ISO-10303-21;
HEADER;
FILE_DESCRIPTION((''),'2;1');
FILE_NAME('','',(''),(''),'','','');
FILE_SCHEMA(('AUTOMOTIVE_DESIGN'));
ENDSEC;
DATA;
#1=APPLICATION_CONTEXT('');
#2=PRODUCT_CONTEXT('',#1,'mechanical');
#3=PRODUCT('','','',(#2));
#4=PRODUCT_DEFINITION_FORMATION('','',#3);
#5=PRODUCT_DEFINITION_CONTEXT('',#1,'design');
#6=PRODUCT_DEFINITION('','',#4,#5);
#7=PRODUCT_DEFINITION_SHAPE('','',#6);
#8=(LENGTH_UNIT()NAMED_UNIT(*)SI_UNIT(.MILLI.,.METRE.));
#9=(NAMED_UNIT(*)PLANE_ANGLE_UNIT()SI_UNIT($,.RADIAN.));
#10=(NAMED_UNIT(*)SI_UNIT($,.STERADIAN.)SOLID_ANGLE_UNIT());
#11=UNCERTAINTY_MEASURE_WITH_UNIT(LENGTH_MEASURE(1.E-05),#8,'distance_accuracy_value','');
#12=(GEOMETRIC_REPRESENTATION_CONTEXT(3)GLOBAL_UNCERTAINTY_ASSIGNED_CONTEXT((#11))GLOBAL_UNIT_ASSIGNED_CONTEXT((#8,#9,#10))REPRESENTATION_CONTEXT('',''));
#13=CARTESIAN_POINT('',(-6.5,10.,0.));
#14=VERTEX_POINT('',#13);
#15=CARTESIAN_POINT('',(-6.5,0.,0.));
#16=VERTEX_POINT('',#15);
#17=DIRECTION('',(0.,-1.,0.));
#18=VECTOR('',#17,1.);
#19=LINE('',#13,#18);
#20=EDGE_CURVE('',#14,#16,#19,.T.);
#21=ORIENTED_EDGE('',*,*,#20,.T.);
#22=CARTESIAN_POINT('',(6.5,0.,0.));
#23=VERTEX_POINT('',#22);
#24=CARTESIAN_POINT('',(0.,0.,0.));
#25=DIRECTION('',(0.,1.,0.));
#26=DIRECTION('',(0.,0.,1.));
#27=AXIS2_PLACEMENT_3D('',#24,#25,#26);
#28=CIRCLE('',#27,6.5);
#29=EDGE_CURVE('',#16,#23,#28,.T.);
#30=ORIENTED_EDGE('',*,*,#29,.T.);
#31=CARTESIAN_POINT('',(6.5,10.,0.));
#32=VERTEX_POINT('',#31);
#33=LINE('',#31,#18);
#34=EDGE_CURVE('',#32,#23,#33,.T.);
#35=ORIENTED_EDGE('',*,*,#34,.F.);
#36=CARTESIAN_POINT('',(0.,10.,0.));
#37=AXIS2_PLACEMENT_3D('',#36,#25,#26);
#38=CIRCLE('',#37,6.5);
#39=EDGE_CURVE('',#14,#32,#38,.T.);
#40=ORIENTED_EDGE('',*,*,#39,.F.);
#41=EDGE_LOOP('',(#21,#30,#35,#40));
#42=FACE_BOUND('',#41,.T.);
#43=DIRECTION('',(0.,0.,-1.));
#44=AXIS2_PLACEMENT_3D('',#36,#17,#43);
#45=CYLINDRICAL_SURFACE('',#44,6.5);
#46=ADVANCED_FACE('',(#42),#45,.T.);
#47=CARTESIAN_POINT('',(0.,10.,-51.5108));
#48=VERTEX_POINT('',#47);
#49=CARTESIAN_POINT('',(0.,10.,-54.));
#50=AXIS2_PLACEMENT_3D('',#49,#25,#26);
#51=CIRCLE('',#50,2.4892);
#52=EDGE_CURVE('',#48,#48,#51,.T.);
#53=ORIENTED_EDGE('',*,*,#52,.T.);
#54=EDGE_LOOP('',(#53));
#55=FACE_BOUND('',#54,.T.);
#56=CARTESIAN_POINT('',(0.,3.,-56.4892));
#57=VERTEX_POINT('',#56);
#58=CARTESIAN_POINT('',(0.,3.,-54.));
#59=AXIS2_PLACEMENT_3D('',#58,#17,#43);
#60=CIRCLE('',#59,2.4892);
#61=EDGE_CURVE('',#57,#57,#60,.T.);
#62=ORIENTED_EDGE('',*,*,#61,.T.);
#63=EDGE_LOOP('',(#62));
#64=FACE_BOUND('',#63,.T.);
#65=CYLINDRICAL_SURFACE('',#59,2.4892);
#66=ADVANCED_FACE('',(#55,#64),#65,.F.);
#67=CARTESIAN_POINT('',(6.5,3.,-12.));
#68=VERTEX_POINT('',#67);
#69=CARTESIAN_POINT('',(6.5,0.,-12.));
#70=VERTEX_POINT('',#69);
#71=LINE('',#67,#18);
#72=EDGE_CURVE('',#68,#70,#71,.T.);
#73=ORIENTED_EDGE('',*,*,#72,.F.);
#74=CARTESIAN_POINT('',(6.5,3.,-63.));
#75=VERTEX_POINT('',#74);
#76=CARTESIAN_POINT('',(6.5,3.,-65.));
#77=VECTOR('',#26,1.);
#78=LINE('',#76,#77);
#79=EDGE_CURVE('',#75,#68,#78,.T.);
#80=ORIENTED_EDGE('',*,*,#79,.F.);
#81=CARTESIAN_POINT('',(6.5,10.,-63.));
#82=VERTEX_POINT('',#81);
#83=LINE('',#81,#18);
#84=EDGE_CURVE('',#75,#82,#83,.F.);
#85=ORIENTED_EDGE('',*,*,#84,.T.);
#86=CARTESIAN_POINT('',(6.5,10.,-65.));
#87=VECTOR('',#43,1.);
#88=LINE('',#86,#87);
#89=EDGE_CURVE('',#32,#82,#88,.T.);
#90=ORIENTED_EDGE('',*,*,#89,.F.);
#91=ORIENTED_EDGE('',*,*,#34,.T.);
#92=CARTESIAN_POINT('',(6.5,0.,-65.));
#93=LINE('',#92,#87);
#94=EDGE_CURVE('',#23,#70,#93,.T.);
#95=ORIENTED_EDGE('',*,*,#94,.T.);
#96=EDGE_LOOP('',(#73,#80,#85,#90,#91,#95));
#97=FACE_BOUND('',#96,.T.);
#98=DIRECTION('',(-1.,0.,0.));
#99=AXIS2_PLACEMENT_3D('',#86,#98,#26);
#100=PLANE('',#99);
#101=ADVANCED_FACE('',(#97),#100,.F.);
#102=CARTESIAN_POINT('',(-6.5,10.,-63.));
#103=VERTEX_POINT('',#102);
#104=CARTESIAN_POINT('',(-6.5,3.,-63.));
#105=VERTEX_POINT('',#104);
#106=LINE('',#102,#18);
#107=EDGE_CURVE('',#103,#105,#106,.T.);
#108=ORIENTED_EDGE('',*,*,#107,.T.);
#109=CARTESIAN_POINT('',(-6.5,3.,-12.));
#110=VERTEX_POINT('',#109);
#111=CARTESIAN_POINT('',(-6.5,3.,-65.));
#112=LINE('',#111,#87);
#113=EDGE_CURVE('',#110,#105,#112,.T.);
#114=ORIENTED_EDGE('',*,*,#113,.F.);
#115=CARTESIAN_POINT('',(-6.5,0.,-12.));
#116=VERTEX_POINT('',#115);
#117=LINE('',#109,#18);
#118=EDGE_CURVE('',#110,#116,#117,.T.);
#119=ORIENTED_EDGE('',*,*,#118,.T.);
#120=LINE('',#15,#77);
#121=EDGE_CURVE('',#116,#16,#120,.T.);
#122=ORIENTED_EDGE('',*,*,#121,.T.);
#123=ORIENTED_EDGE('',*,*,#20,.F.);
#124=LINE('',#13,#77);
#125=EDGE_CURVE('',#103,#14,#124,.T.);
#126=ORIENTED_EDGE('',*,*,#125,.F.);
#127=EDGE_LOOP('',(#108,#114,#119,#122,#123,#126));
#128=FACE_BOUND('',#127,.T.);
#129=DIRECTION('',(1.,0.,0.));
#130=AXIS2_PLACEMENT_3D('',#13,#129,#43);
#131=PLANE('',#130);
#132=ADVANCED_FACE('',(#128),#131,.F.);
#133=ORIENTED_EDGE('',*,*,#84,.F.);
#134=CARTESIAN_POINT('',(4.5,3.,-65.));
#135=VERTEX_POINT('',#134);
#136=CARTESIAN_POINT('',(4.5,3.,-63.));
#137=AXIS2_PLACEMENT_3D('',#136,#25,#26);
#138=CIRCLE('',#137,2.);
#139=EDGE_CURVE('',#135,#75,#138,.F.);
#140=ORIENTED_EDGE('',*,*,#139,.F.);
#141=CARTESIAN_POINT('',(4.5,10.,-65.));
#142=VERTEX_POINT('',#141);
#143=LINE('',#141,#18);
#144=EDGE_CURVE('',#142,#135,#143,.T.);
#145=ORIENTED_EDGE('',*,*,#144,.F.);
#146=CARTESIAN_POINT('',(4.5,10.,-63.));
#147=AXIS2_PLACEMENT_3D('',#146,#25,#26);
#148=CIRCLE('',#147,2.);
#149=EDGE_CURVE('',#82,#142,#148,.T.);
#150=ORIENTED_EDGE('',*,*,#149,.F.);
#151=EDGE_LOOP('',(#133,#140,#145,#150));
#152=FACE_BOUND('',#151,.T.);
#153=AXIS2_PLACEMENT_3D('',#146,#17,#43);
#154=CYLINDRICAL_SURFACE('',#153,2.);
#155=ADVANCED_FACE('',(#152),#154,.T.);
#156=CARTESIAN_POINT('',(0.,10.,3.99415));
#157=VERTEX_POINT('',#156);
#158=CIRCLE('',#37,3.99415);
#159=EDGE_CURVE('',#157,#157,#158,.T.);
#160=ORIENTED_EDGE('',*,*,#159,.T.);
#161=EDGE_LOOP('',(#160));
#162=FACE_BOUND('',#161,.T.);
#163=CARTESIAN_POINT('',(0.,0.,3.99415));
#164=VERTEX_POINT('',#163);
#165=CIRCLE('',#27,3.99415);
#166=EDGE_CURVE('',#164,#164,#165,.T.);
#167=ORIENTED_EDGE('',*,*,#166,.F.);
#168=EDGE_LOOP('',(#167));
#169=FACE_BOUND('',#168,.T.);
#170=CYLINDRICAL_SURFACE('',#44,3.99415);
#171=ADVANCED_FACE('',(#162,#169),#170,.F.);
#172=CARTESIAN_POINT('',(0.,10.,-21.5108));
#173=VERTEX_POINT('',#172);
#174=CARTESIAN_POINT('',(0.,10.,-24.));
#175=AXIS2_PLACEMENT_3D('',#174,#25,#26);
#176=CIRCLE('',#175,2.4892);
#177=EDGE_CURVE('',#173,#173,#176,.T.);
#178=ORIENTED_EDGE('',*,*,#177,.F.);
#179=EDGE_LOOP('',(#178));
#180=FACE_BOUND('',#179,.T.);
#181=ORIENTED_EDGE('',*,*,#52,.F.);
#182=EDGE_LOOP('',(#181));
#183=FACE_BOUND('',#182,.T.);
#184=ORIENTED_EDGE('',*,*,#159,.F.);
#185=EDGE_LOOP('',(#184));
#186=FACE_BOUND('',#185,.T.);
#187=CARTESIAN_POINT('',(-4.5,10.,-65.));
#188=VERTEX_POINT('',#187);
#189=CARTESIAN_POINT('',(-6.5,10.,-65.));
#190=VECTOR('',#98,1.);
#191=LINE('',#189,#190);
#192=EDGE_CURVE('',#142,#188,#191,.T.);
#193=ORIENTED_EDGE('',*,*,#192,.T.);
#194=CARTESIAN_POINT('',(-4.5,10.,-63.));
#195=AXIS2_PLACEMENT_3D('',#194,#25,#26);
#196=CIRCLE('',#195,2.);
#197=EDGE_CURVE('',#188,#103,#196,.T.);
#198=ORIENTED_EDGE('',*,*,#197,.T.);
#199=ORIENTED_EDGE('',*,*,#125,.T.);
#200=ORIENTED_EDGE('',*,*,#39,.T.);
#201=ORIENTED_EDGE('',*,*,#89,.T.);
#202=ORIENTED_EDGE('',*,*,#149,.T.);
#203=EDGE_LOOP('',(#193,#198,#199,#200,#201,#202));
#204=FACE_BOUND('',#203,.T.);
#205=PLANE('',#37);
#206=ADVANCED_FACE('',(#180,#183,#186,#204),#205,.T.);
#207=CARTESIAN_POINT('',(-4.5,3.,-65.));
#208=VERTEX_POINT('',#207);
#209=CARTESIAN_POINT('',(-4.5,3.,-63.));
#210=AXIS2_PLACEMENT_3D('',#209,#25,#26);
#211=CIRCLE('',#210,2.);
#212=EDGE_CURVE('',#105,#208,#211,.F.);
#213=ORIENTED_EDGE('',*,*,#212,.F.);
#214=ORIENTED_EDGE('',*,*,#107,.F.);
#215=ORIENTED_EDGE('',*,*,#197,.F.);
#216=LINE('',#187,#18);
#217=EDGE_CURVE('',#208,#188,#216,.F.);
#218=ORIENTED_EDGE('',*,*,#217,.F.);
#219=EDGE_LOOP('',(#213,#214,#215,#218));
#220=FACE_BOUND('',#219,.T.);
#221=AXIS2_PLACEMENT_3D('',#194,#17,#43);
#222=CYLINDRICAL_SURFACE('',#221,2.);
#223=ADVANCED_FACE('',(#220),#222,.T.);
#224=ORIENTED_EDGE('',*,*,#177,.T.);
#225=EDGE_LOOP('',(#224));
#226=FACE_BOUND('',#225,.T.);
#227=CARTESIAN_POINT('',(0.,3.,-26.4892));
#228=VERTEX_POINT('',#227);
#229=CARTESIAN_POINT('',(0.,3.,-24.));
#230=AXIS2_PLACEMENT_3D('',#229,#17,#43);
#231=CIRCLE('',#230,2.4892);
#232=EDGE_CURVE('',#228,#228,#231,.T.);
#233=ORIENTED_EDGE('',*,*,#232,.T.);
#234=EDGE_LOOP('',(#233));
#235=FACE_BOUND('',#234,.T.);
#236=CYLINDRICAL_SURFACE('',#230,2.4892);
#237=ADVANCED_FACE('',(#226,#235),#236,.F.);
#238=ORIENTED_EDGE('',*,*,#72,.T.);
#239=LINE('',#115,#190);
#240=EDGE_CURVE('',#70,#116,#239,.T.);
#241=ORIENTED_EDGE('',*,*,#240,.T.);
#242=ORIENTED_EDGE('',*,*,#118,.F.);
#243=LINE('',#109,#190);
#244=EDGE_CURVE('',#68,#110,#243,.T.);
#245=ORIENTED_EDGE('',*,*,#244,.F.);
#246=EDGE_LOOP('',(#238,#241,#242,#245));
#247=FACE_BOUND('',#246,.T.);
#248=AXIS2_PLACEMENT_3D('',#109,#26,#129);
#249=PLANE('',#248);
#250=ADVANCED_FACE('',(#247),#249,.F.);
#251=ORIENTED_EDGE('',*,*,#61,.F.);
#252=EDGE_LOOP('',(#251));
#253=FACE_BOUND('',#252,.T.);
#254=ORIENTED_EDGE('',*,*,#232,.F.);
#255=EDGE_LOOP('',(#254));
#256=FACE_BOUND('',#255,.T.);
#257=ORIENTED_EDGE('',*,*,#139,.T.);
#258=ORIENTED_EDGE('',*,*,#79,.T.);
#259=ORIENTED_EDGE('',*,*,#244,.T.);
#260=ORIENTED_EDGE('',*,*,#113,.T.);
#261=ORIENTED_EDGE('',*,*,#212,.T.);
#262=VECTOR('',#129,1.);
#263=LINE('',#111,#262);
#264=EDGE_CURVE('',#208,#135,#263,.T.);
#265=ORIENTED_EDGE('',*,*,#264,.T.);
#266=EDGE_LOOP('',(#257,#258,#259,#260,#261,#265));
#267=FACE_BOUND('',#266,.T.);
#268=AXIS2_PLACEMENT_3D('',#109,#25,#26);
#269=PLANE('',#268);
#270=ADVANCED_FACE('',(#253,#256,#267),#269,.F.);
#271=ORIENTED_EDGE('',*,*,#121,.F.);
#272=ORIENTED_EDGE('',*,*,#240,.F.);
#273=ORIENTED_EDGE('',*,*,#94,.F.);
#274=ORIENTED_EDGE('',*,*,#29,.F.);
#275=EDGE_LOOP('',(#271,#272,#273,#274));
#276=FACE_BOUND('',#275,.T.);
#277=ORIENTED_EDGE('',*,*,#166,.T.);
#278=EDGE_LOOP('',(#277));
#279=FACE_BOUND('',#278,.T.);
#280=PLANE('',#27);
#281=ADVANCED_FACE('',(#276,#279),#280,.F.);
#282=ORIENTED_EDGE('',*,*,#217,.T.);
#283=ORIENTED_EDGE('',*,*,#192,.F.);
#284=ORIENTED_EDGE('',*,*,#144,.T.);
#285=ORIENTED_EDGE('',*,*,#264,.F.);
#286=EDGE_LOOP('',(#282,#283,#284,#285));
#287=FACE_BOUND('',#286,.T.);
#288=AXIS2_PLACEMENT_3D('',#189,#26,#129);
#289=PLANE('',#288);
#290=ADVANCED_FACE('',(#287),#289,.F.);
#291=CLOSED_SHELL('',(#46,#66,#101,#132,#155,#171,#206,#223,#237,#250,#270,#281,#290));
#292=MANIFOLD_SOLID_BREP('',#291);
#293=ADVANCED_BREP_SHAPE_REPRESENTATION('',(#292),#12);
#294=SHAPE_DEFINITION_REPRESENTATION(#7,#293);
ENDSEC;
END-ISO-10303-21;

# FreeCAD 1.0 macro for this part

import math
import FreeCAD as App
import Part
import Sketcher

V = App.Vector


def edges_at(feature, points):
    """Names of the edges that pass closest to the given points."""
    edges = feature.Shape.Edges
    near = lambda p: min(range(len(edges)), key=lambda i: edges[i].distToShape(Part.Vertex(*p))[0])
    return sorted({f"Edge{near(p) + 1}" for p in points})

doc = App.newDocument("Part")
params = doc.addObject("Spreadsheet::Sheet", "Params")
for row, (alias, value) in enumerate([
    ("sketch1_radius", "6.5 mm"),
    ("sketch1_height", "65 mm"),
    ("pad1_length", "10 mm"),
    ("sketch2_width", "13 mm"),
    ("sketch2_height", "53 mm"),
    ("pocket1_length", "3 mm"),
    ("hole_diameter", "4.9784 mm"),
    ("hole_depth", "40 mm"),
    ("fillet_radius", "2 mm"),
], start=1):
    params.set(f"A{row}", alias)
    params.set(f"B{row}", "=" + value)
    params.setAlias(f"B{row}", alias)

body = doc.addObject("PartDesign::Body", "Body")

sketch1 = body.newObject("Sketcher::SketchObject", "Sketch")
sketch1.AttachmentSupport = (doc.getObject("XZ_Plane"), [""])
sketch1.MapMode = "FlatFace"
sketch1.addGeometry([
    Part.LineSegment(V(-6.5, -65, 0), V(-6.5, 0, 0)),
    Part.ArcOfCircle(Part.Circle(V(0, 0, 0), V(0, 0, 1), 6.5), math.radians(0), math.radians(180)),
    Part.LineSegment(V(6.5, 0, 0), V(6.5, -65, 0)),
    Part.LineSegment(V(6.5, -65, 0), V(-6.5, -65, 0)),
    Part.Circle(V(0, 0, 0), V(0, 0, 1), 4),
], False)
sketch1.addConstraint([
    Sketcher.Constraint("Tangent", 0, 2, 1, 2),
    Sketcher.Constraint("Tangent", 1, 1, 2, 1),
    Sketcher.Constraint("Coincident", 2, 2, 3, 1),
    Sketcher.Constraint("Coincident", 3, 2, 0, 1),
    Sketcher.Constraint("Vertical", 0),
    Sketcher.Constraint("Vertical", 2),
    Sketcher.Constraint("Horizontal", 3),
    Sketcher.Constraint("Coincident", 1, 3, -1, 1),
    Sketcher.Constraint("Coincident", 4, 3, -1, 1),
    Sketcher.Constraint("Radius", 1, 6.5),
    Sketcher.Constraint("DistanceY", 0, 1, 0, 2, 65.0),
    Sketcher.Constraint("Diameter", 4, 7.9883),
])
sketch1.setExpression("Constraints[9]", "Params.sketch1_radius")
sketch1.setExpression("Constraints[10]", "Params.sketch1_height")
pad1 = body.newObject("PartDesign::Pad", "Pad")
pad1.Profile = sketch1
pad1.setExpression("Length", "Params.pad1_length")
pad1.Reversed = True

sketch2 = body.newObject("Sketcher::SketchObject", "Sketch001")
sketch2.AttachmentSupport = (doc.getObject("XZ_Plane"), [""])
sketch2.MapMode = "FlatFace"
sketch2.addGeometry([
    Part.LineSegment(V(-6, -12, 0), V(-6, -65, 0)),
    Part.LineSegment(V(-6, -65, 0), V(6, -65, 0)),
    Part.LineSegment(V(6, -65, 0), V(6, -12, 0)),
    Part.LineSegment(V(6, -12, 0), V(-6, -12, 0)),
], False)
sketch2.addConstraint([
    Sketcher.Constraint("Coincident", 0, 2, 1, 1),
    Sketcher.Constraint("Coincident", 1, 2, 2, 1),
    Sketcher.Constraint("Coincident", 2, 2, 3, 1),
    Sketcher.Constraint("Coincident", 3, 2, 0, 1),
    Sketcher.Constraint("Vertical", 0),
    Sketcher.Constraint("Horizontal", 1),
    Sketcher.Constraint("Vertical", 2),
    Sketcher.Constraint("Horizontal", 3),
    Sketcher.Constraint("DistanceX", 1, 1, 1, 2, 13.0),
    Sketcher.Constraint("DistanceY", 0, 2, 0, 1, 53.0),
    Sketcher.Constraint("DistanceY", 0, 2, -1, 1, 65.0),
    Sketcher.Constraint("DistanceX", 0, 2, -1, 1, 6.5),
])
sketch2.setExpression("Constraints[8]", "Params.sketch2_width")
sketch2.setExpression("Constraints[9]", "Params.sketch2_height")
pocket1 = body.newObject("PartDesign::Pocket", "Pocket")
pocket1.Profile = sketch2
pocket1.setExpression("Length", "Params.pocket1_length")

sketch3 = body.newObject("Sketcher::SketchObject", "Sketch002")
sketch3.AttachmentSupport = (doc.getObject("XZ_Plane"), [""])
sketch3.MapMode = "FlatFace"
sketch3.AttachmentOffset = App.Placement(V(0, 0, -3), App.Rotation())
sketch3.addGeometry([
    Part.Circle(V(0, -54, 0), V(0, 0, 1), 2.5),
    Part.Circle(V(0, -24, 0), V(0, 0, 1), 2.5),
], False)
sketch3.addConstraint([
    Sketcher.Constraint("Equal", 0, 1),
    Sketcher.Constraint("PointOnObject", 0, 3, -2),
    Sketcher.Constraint("PointOnObject", 1, 3, -2),
    Sketcher.Constraint("DistanceY", 0, 3, -1, 1, 54.0),
    Sketcher.Constraint("DistanceY", 1, 3, -1, 1, 24.0),
    Sketcher.Constraint("Diameter", 0, 4.9784),
])
doc.recompute()
hole = body.newObject("PartDesign::Hole", "Hole")
hole.Profile = sketch3
hole.ThreadType = "None"
hole.setExpression("Diameter", "Params.hole_diameter")
hole.DepthType = "Dimension"
hole.setExpression("Depth", "Params.hole_depth")
hole.DrillPoint = "Angled"
hole.DrillPointAngle = 118
doc.recompute()

fillet = body.newObject("PartDesign::Fillet", "Fillet")
fillet.Base = (hole, edges_at(hole, [(-6.5, 6.5, -65), (6.5, 6.5, -65)]))
fillet.setExpression("Radius", "Params.fillet_radius")

doc.recompute()
